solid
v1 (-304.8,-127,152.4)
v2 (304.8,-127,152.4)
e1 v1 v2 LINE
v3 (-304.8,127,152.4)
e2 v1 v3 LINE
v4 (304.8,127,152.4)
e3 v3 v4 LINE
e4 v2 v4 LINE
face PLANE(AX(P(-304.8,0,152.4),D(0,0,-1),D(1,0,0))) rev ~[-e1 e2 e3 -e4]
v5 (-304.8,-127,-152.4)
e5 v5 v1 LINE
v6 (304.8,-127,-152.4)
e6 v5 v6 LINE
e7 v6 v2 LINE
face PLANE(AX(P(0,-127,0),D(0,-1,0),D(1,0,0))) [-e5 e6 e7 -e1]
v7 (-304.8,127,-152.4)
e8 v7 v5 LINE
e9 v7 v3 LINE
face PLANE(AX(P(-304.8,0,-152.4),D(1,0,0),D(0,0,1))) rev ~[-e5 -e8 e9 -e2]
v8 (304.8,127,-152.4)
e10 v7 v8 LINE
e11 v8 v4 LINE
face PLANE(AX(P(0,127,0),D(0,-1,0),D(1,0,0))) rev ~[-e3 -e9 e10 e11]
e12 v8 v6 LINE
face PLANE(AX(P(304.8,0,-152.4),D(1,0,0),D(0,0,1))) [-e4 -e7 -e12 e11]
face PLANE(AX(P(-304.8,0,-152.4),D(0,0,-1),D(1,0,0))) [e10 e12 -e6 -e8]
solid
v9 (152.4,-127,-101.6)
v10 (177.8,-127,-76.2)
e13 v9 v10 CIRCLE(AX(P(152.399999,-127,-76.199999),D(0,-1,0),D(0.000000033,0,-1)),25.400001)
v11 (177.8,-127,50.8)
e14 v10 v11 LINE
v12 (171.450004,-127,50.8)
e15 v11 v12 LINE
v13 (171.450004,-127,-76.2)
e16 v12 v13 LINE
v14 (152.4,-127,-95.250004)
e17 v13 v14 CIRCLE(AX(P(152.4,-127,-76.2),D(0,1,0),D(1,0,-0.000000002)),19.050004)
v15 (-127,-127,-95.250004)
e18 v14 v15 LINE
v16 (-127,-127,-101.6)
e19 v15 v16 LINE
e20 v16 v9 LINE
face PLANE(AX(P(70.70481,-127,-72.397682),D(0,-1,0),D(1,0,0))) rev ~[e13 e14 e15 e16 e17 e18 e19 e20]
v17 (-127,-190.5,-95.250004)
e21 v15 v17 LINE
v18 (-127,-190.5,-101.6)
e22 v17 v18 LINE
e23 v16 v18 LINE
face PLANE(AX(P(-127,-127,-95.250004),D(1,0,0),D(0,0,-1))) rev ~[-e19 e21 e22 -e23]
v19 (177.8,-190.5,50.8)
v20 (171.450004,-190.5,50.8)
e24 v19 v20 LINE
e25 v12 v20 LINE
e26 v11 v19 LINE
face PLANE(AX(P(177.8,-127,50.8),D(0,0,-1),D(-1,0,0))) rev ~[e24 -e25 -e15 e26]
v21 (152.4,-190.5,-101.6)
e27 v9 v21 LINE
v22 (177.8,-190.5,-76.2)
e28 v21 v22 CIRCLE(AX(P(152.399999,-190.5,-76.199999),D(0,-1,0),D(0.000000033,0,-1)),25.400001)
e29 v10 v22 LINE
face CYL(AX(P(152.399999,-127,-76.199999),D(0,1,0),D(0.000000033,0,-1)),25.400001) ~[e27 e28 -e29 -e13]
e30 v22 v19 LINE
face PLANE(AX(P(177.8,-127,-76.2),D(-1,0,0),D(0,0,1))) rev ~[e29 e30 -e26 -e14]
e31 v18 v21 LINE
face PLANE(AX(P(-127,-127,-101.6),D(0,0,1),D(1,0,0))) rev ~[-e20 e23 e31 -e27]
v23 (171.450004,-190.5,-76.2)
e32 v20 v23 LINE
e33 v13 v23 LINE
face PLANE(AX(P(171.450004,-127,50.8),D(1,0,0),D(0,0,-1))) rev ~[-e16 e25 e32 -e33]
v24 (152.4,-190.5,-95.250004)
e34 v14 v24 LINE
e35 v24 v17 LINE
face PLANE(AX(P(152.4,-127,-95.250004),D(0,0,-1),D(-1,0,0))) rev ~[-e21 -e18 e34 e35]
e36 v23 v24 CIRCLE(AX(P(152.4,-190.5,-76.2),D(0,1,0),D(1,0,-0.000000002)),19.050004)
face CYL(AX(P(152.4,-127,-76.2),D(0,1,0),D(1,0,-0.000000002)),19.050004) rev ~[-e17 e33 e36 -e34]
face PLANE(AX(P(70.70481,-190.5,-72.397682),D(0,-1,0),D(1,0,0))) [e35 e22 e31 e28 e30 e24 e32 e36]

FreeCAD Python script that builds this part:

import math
import FreeCAD as App
import Part
import Sketcher
Q = App.Units.Quantity

doc = App.newDocument("Part")
body = doc.addObject("PartDesign::Body", "Body")

# Sketch on XZ plane
sketch1 = body.newObject("Sketcher::SketchObject", "Sketch")
sketch1.AttachmentSupport = (doc.getObject("XZ_Plane"), [""])
sketch1.MapMode = "FlatFace"
sketch1.addGeometry(Part.LineSegment(App.Vector(-304.8, 152.4, 0), App.Vector(-304.8, -152.4, 0)), False)
sketch1.addGeometry(Part.LineSegment(App.Vector(-304.8, -152.4, 0), App.Vector(304.8, -152.4, 0)), False)
sketch1.addGeometry(Part.LineSegment(App.Vector(304.8, -152.4, 0), App.Vector(304.8, 152.4, 0)), False)
sketch1.addGeometry(Part.LineSegment(App.Vector(304.8, 152.4, 0), App.Vector(-304.8, 152.4, 0)), False)
sketch1.addConstraint(Sketcher.Constraint("Coincident", 0, 2, 1, 1))
sketch1.addConstraint(Sketcher.Constraint("Coincident", 1, 2, 2, 1))
sketch1.addConstraint(Sketcher.Constraint("Coincident", 2, 2, 3, 1))
sketch1.addConstraint(Sketcher.Constraint("Coincident", 3, 2, 0, 1))
sketch1.addConstraint(Sketcher.Constraint("Vertical", 0))
sketch1.addConstraint(Sketcher.Constraint("Horizontal", 1))
sketch1.addConstraint(Sketcher.Constraint("Vertical", 2))
sketch1.addConstraint(Sketcher.Constraint("Horizontal", 3))
sketch1.addConstraint(Sketcher.Constraint("Symmetric", 0, 2, 2, 2, -1, 1))
sketch1.addConstraint(Sketcher.Constraint("DistanceX", 1, 1, 1, 2, Q("24 in")))
sketch1.addConstraint(Sketcher.Constraint("DistanceY", 0, 2, 0, 1, Q("12 in")))
pad1 = body.newObject("PartDesign::Pad", "Pad")
pad1.Profile = sketch1
pad1.Length = Q("10 in")
pad1.Midplane = True
body2 = doc.addObject("PartDesign::Body", "Body001")

# Sketch on XZ plane
sketch2 = body2.newObject("Sketcher::SketchObject", "Sketch001")
sketch2.AttachmentSupport = (doc.getObject("XZ_Plane001"), [""])
sketch2.MapMode = "FlatFace"
sketch2.AttachmentOffset = App.Placement(App.Vector(0, 0, 5 * 25.4), App.Rotation())
sketch2.addGeometry(Part.LineSegment(App.Vector(177.8, -76.2, 0), App.Vector(177.8, 50.8, 0)), False)
sketch2.addGeometry(Part.LineSegment(App.Vector(177.8, 50.8, 0), App.Vector(171.450004, 50.8, 0)), False)
sketch2.addGeometry(Part.LineSegment(App.Vector(171.450004, 50.8, 0), App.Vector(171.450004, -76.2, 0)), False)
sketch2.addGeometry(Part.ArcOfCircle(Part.Circle(App.Vector(152.4, -76.2, 0), App.Vector(0, 0, 1), 19.050004), math.radians(-90), math.radians(0)), False)
sketch2.addGeometry(Part.LineSegment(App.Vector(152.4, -95.250004, 0), App.Vector(-127, -95.250004, 0)), False)
sketch2.addGeometry(Part.LineSegment(App.Vector(-127, -95.250004, 0), App.Vector(-127, -101.6, 0)), False)
sketch2.addGeometry(Part.LineSegment(App.Vector(-127, -101.6, 0), App.Vector(152.4, -101.6, 0)), False)
sketch2.addGeometry(Part.ArcOfCircle(Part.Circle(App.Vector(152.399999, -76.199999, 0), App.Vector(0, 0, 1), 25.400001), math.radians(-89.999998), math.radians(-0.000002)), False)
sketch2.addConstraint(Sketcher.Constraint("Coincident", 0, 2, 1, 1))
sketch2.addConstraint(Sketcher.Constraint("Coincident", 1, 2, 2, 1))
sketch2.addConstraint(Sketcher.Constraint("Tangent", 2, 2, 3, 2))
sketch2.addConstraint(Sketcher.Constraint("Tangent", 3, 1, 4, 1))
sketch2.addConstraint(Sketcher.Constraint("Coincident", 4, 2, 5, 1))
sketch2.addConstraint(Sketcher.Constraint("Coincident", 5, 2, 6, 1))
sketch2.addConstraint(Sketcher.Constraint("Tangent", 6, 2, 7, 1))
sketch2.addConstraint(Sketcher.Constraint("Tangent", 7, 2, 0, 1))
sketch2.addConstraint(Sketcher.Constraint("Vertical", 0))
sketch2.addConstraint(Sketcher.Constraint("Horizontal", 1))
sketch2.addConstraint(Sketcher.Constraint("Vertical", 2))
sketch2.addConstraint(Sketcher.Constraint("Horizontal", 4))
sketch2.addConstraint(Sketcher.Constraint("Vertical", 5))
sketch2.addConstraint(Sketcher.Constraint("Horizontal", 6))
sketch2.addConstraint(Sketcher.Constraint("Coincident", 7, 3, 3, 3))
sketch2.addConstraint(Sketcher.Constraint("Radius", 7, Q("1 in")))
sketch2.addConstraint(Sketcher.Constraint("DistanceX", 4, 2, 4, 1, Q("11 in")))
sketch2.addConstraint(Sketcher.Constraint("DistanceY", 0, 1, 0, 2, Q("5 in")))
sketch2.addConstraint(Sketcher.Constraint("Radius", 3, Q("0.7500002 in")))
sketch2.addConstraint(Sketcher.Constraint("DistanceX", -1, 1, 3, 3, Q("6 in")))
sketch2.addConstraint(Sketcher.Constraint("DistanceY", 3, 3, -1, 1, Q("3 in")))
pad2 = body2.newObject("PartDesign::Pad", "Pad001")
pad2.Profile = sketch2
pad2.Length = Q("2.5 in")

doc.recompute()
